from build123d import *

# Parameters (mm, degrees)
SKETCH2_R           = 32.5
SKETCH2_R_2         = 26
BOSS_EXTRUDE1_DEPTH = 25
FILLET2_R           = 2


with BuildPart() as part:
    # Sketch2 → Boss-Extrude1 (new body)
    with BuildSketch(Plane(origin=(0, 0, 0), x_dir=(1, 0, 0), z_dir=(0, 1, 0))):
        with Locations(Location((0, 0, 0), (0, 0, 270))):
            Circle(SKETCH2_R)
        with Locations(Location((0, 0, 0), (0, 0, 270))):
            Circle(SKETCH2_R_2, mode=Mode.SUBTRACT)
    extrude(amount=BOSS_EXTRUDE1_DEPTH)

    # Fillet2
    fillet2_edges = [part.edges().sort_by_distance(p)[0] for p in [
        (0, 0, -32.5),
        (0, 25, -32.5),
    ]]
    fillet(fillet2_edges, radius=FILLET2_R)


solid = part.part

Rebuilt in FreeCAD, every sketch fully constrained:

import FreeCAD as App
import Part
import Sketcher

V = App.Vector


def edges_at(feature, points):
    """Names of the edges that pass closest to the given points."""
    edges = feature.Shape.Edges
    near = lambda p: min(range(len(edges)), key=lambda i: edges[i].distToShape(Part.Vertex(*p))[0])
    return sorted({f"Edge{near(p) + 1}" for p in points})

doc = App.newDocument("Part")
params = doc.addObject("Spreadsheet::Sheet", "Params")
for row, (alias, value) in enumerate([
    ("sketch1_diameter", "65 mm"),
    ("sketch1_diameter2", "52 mm"),
    ("pad1_length", "25 mm"),
    ("fillet_radius", "2 mm"),
], start=1):
    params.set(f"A{row}", alias)
    params.set(f"B{row}", "=" + value)
    params.setAlias(f"B{row}", alias)

body = doc.addObject("PartDesign::Body", "Body")

# Sketch on XZ plane
sketch1 = body.newObject("Sketcher::SketchObject", "Sketch")
sketch1.AttachmentSupport = (doc.getObject("XZ_Plane"), [""])
sketch1.MapMode = "FlatFace"
sketch1.addGeometry(Part.Circle(V(0, 0, 0), V(0, 0, 1), 32.5), False)
sketch1.addGeometry(Part.Circle(V(0, 0, 0), V(0, 0, 1), 26), False)
sketch1.addConstraint(Sketcher.Constraint("Coincident", 0, 3, -1, 1))
sketch1.addConstraint(Sketcher.Constraint("Coincident", 1, 3, -1, 1))
sketch1.addConstraint(Sketcher.Constraint("Diameter", 0, 65.0))
sketch1.addConstraint(Sketcher.Constraint("Diameter", 1, 52.0))
sketch1.setExpression("Constraints[2]", "Params.sketch1_diameter")
sketch1.setExpression("Constraints[3]", "Params.sketch1_diameter2")
pad1 = body.newObject("PartDesign::Pad", "Pad")
pad1.Profile = sketch1
pad1.setExpression("Length", "Params.pad1_length")
pad1.Reversed = True
doc.recompute()

fillet = body.newObject("PartDesign::Fillet", "Fillet")
fillet.Base = (pad1, edges_at(pad1, [(0, 0, -32.5), (0, 25, -32.5)]))
fillet.setExpression("Radius", "Params.fillet_radius")

doc.recompute()
